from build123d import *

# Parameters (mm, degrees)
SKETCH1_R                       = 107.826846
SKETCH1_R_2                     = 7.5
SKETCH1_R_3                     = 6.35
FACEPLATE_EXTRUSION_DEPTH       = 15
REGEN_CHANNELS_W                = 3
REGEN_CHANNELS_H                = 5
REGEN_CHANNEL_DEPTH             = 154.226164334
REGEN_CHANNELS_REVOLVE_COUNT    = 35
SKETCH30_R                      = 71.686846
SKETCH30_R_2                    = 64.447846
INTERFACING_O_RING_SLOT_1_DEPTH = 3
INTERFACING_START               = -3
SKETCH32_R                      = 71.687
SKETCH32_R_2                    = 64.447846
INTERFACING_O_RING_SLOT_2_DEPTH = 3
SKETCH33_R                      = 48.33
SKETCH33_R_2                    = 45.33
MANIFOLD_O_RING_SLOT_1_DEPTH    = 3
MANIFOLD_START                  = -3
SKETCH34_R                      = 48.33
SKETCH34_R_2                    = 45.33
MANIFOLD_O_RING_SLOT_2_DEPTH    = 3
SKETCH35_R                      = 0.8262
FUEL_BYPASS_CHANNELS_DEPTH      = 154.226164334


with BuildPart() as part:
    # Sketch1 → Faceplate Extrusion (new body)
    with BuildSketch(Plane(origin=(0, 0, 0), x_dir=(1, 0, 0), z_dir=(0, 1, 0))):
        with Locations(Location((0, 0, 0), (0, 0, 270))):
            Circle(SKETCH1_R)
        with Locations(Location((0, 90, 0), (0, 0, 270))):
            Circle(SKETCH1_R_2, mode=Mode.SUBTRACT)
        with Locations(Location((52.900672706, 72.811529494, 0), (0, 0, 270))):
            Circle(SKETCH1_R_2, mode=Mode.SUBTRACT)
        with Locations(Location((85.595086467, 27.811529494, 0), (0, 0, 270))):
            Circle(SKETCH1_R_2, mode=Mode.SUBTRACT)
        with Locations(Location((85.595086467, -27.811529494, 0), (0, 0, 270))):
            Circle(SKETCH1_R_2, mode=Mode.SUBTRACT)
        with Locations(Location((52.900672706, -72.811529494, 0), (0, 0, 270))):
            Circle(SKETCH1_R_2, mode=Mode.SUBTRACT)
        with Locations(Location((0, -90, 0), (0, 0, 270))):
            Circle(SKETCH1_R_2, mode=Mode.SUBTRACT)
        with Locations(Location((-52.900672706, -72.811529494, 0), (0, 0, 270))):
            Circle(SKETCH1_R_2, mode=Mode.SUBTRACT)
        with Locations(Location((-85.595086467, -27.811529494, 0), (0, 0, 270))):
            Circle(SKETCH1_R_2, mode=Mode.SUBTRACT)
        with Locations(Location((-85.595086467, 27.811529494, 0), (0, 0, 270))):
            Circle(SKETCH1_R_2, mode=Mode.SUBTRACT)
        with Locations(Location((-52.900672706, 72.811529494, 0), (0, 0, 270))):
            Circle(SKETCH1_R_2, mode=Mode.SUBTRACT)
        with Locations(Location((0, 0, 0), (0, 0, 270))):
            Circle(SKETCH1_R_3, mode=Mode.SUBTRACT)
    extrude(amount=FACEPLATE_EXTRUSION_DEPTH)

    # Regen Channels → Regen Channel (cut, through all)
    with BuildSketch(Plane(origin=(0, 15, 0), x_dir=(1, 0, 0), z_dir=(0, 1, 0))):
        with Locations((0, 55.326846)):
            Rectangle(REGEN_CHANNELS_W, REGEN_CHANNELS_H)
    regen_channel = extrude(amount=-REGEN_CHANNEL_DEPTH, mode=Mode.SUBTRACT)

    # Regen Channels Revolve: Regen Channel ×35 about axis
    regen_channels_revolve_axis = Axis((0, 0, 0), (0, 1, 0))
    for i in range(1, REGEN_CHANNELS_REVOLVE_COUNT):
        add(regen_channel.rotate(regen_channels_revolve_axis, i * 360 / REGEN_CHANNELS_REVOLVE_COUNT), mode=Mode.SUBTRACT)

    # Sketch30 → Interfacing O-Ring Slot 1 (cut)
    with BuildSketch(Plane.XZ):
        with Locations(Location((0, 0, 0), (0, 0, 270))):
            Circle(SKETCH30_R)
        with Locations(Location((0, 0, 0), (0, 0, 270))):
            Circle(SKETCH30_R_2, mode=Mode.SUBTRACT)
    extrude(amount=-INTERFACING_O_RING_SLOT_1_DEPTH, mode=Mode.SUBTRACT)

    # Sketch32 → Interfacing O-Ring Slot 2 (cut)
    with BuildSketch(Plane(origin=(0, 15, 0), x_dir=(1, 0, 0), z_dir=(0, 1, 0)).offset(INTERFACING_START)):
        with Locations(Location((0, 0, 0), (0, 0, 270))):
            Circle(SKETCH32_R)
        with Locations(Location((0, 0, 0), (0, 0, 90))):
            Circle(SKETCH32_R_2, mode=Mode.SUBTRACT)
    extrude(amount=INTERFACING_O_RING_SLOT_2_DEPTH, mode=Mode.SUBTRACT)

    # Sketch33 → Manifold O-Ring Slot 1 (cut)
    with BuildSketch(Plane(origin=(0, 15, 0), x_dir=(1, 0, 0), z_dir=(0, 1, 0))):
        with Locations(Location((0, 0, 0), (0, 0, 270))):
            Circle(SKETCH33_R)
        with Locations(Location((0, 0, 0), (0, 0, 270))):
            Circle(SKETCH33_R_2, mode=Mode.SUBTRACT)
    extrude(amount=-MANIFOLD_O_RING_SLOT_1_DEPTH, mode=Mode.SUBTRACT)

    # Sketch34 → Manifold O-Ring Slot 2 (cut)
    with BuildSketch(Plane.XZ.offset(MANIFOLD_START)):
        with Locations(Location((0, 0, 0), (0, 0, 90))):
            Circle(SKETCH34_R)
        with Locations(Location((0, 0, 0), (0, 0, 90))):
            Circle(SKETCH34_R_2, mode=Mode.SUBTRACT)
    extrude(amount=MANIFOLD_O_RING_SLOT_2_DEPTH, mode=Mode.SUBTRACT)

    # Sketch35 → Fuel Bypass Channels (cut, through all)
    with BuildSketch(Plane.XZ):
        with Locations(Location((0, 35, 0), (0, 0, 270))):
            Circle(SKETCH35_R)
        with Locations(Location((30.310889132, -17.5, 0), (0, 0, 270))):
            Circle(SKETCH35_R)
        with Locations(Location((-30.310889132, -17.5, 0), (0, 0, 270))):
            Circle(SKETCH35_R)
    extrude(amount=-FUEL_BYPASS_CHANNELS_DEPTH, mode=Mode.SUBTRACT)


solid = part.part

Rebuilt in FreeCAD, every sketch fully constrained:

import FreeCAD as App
import Part
import Sketcher

V = App.Vector

doc = App.newDocument("Part")
body = doc.addObject("PartDesign::Body", "Body")

sketch1 = body.newObject("Sketcher::SketchObject", "Sketch")
sketch1.AttachmentSupport = (doc.getObject("XZ_Plane"), [""])
sketch1.MapMode = "FlatFace"
sketch1.addGeometry([
    Part.Circle(V(0, 0, 0), V(0, 0, 1), 108),
    Part.Circle(V(-53, -73, 0), V(0, 0, 1), 8),
    Part.Circle(V(-86, -28, 0), V(0, 0, 1), 8),
    Part.Circle(V(0, -90, 0), V(0, 0, 1), 8),
    Part.Circle(V(-86, 28, 0), V(0, 0, 1), 8),
    Part.Circle(V(-53, 73, 0), V(0, 0, 1), 8),
    Part.Circle(V(53, -73, 0), V(0, 0, 1), 8),
    Part.Circle(V(86, -28, 0), V(0, 0, 1), 8),
    Part.Circle(V(0, 0, 0), V(0, 0, 1), 6),
    Part.Circle(V(0, 90, 0), V(0, 0, 1), 8),
    Part.Circle(V(86, 28, 0), V(0, 0, 1), 8),
    Part.Circle(V(53, 73, 0), V(0, 0, 1), 8),
], False)
sketch1.addConstraint([
    Sketcher.Constraint("Coincident", 0, 3, -1, 1),
    Sketcher.Constraint("Coincident", 8, 3, -1, 1),
    Sketcher.Constraint("Equal", 1, 2),
    Sketcher.Constraint("Equal", 2, 3),
    Sketcher.Constraint("Equal", 3, 4),
    Sketcher.Constraint("Equal", 4, 5),
    Sketcher.Constraint("Equal", 5, 6),
    Sketcher.Constraint("Equal", 6, 7),
    Sketcher.Constraint("Equal", 7, 9),
    Sketcher.Constraint("Equal", 9, 10),
    Sketcher.Constraint("Equal", 10, 11),
    Sketcher.Constraint("Symmetric", 5, 3, 6, 3, -1, 1),
    Sketcher.Constraint("Symmetric", 4, 3, 7, 3, -1, 1),
    Sketcher.Constraint("Symmetric", 3, 3, 9, 3, -1, 1),
    Sketcher.Constraint("Symmetric", 2, 3, 10, 3, -1, 1),
    Sketcher.Constraint("Symmetric", 1, 3, 11, 3, -1, 1),
    Sketcher.Constraint("Symmetric", 1, 3, 6, 3, -2),
    Sketcher.Constraint("Symmetric", 2, 3, 7, 3, -2),
    Sketcher.Constraint("PointOnObject", 3, 3, -2),
    Sketcher.Constraint("Diameter", 1, 15.0),
    Sketcher.Constraint("Diameter", 8, 12.7),
    Sketcher.Constraint("DistanceY", 3, 3, -1, 1, 90.0),
    Sketcher.Constraint("DistanceY", 1, 3, 2, 3, 45.0),
    Sketcher.Constraint("Diameter", 0, 215.653692),
    Sketcher.Constraint("DistanceY", 1, 3, -1, 1, 72.811529),
    Sketcher.Constraint("DistanceX", 2, 3, 6, 3, 138.495759),
    Sketcher.Constraint("DistanceX", 1, 3, -1, 1, 52.900673),
])
pad1 = body.newObject("PartDesign::Pad", "Pad")
pad1.Profile = sketch1
pad1.Length = 15
pad1.Reversed = True

sketch2 = body.newObject("Sketcher::SketchObject", "Sketch001")
sketch2.AttachmentSupport = (doc.getObject("XZ_Plane"), [""])
sketch2.MapMode = "FlatFace"
sketch2.AttachmentOffset = App.Placement(V(0, 0, -15), App.Rotation())
sketch2.addGeometry([
    Part.LineSegment(V(-1.5, -57.8, 0), V(-1.5, -52.8, 0)),
    Part.LineSegment(V(-1.5, -52.8, 0), V(1.5, -52.8, 0)),
    Part.LineSegment(V(1.5, -52.8, 0), V(1.5, -57.8, 0)),
    Part.LineSegment(V(1.5, -57.8, 0), V(-1.5, -57.8, 0)),
], False)
sketch2.addConstraint([
    Sketcher.Constraint("Coincident", 0, 2, 1, 1),
    Sketcher.Constraint("Coincident", 1, 2, 2, 1),
    Sketcher.Constraint("Coincident", 2, 2, 3, 1),
    Sketcher.Constraint("Coincident", 3, 2, 0, 1),
    Sketcher.Constraint("Vertical", 0),
    Sketcher.Constraint("Horizontal", 1),
    Sketcher.Constraint("Vertical", 2),
    Sketcher.Constraint("Horizontal", 3),
    Sketcher.Constraint("DistanceX", 1, 1, 1, 2, 3.0),
    Sketcher.Constraint("DistanceY", 0, 1, 0, 2, 5.0),
    Sketcher.Constraint("DistanceX", 0, 2, -1, 1, 1.5),
    Sketcher.Constraint("DistanceY", 0, 2, -1, 1, 52.826846),
])
pocket1 = body.newObject("PartDesign::Pocket", "Pocket")
pocket1.Profile = sketch2
pocket1.Type = "ThroughAll"
pocket1.Reversed = True
doc.recompute()

polarpattern = body.newObject("PartDesign::PolarPattern", "PolarPattern")
polarpattern.Originals = [pocket1]
polarpattern.Axis = (doc.getObject("Y_Axis"), [""])
polarpattern.Angle = 360
polarpattern.Occurrences = 35
body.Tip = polarpattern

sketch3 = body.newObject("Sketcher::SketchObject", "Sketch002")
sketch3.AttachmentSupport = (doc.getObject("XZ_Plane"), [""])
sketch3.MapMode = "FlatFace"
sketch3.addGeometry([
    Part.Circle(V(0, 0, 0), V(0, 0, 1), 72),
    Part.Circle(V(0, 0, 0), V(0, 0, 1), 64),
], False)
sketch3.addConstraint([
    Sketcher.Constraint("Coincident", 0, 3, -1, 1),
    Sketcher.Constraint("Coincident", 1, 3, -1, 1),
    Sketcher.Constraint("Diameter", 0, 143.373692),
    Sketcher.Constraint("Diameter", 1, 128.895692),
])
pocket2 = body.newObject("PartDesign::Pocket", "Pocket001")
pocket2.Profile = sketch3
pocket2.Length = 3

sketch4 = body.newObject("Sketcher::SketchObject", "Sketch003")
sketch4.AttachmentSupport = (doc.getObject("XZ_Plane"), [""])
sketch4.MapMode = "FlatFace"
sketch4.AttachmentOffset = App.Placement(V(0, 0, -12), App.Rotation())
sketch4.addGeometry([
    Part.Circle(V(0, 0, 0), V(0, 0, 1), 72),
    Part.Circle(V(0, 0, 0), V(0, 0, 1), 64),
], False)
sketch4.addConstraint([
    Sketcher.Constraint("Coincident", 0, 3, -1, 1),
    Sketcher.Constraint("Coincident", 1, 3, -1, 1),
    Sketcher.Constraint("Diameter", 0, 143.374),
    Sketcher.Constraint("Diameter", 1, 128.895692),
])
pocket3 = body.newObject("PartDesign::Pocket", "Pocket002")
pocket3.Profile = sketch4
pocket3.Length = 3

sketch5 = body.newObject("Sketcher::SketchObject", "Sketch004")
sketch5.AttachmentSupport = (doc.getObject("XZ_Plane"), [""])
sketch5.MapMode = "FlatFace"
sketch5.AttachmentOffset = App.Placement(V(0, 0, -15), App.Rotation())
sketch5.addGeometry([
    Part.Circle(V(0, 0, 0), V(0, 0, 1), 48),
    Part.Circle(V(0, 0, 0), V(0, 0, 1), 45),
], False)
sketch5.addConstraint([
    Sketcher.Constraint("Coincident", 0, 3, -1, 1),
    Sketcher.Constraint("Coincident", 1, 3, -1, 1),
    Sketcher.Constraint("Diameter", 0, 96.66),
    Sketcher.Constraint("Diameter", 1, 90.66),
])
pocket4 = body.newObject("PartDesign::Pocket", "Pocket003")
pocket4.Profile = sketch5
pocket4.Length = 3
pocket4.Reversed = True

sketch6 = body.newObject("Sketcher::SketchObject", "Sketch005")
sketch6.AttachmentSupport = (doc.getObject("XZ_Plane"), [""])
sketch6.MapMode = "FlatFace"
sketch6.AttachmentOffset = App.Placement(V(0, 0, -3), App.Rotation())
sketch6.addGeometry([
    Part.Circle(V(0, 0, 0), V(0, 0, 1), 48),
    Part.Circle(V(0, 0, 0), V(0, 0, 1), 45),
], False)
sketch6.addConstraint([
    Sketcher.Constraint("Coincident", 0, 3, -1, 1),
    Sketcher.Constraint("Coincident", 1, 3, -1, 1),
    Sketcher.Constraint("Diameter", 0, 96.66),
    Sketcher.Constraint("Diameter", 1, 90.66),
])
pocket5 = body.newObject("PartDesign::Pocket", "Pocket004")
pocket5.Profile = sketch6
pocket5.Length = 3
pocket5.Reversed = True

sketch7 = body.newObject("Sketcher::SketchObject", "Sketch006")
sketch7.AttachmentSupport = (doc.getObject("XZ_Plane"), [""])
sketch7.MapMode = "FlatFace"
sketch7.addGeometry([
    Part.Circle(V(0, 35, 0), V(0, 0, 1), 0.8),
    Part.Circle(V(30.3, -17.5, 0), V(0, 0, 1), 0.8),
    Part.Circle(V(-30.3, -17.5, 0), V(0, 0, 1), 0.8),
], False)
sketch7.addConstraint([
    Sketcher.Constraint("Equal", 0, 1),
    Sketcher.Constraint("Equal", 1, 2),
    Sketcher.Constraint("Symmetric", 1, 3, 2, 3, -2),
    Sketcher.Constraint("PointOnObject", 0, 3, -2),
    Sketcher.Constraint("DistanceY", -1, 1, 0, 3, 35.0),
    Sketcher.Constraint("Diameter", 0, 1.6524),
    Sketcher.Constraint("DistanceY", 1, 3, -1, 1, 17.5),
    Sketcher.Constraint("DistanceX", -1, 1, 1, 3, 30.310889),
])
pocket6 = body.newObject("PartDesign::Pocket", "Pocket005")
pocket6.Profile = sketch7
pocket6.Type = "ThroughAll"

doc.recompute()
